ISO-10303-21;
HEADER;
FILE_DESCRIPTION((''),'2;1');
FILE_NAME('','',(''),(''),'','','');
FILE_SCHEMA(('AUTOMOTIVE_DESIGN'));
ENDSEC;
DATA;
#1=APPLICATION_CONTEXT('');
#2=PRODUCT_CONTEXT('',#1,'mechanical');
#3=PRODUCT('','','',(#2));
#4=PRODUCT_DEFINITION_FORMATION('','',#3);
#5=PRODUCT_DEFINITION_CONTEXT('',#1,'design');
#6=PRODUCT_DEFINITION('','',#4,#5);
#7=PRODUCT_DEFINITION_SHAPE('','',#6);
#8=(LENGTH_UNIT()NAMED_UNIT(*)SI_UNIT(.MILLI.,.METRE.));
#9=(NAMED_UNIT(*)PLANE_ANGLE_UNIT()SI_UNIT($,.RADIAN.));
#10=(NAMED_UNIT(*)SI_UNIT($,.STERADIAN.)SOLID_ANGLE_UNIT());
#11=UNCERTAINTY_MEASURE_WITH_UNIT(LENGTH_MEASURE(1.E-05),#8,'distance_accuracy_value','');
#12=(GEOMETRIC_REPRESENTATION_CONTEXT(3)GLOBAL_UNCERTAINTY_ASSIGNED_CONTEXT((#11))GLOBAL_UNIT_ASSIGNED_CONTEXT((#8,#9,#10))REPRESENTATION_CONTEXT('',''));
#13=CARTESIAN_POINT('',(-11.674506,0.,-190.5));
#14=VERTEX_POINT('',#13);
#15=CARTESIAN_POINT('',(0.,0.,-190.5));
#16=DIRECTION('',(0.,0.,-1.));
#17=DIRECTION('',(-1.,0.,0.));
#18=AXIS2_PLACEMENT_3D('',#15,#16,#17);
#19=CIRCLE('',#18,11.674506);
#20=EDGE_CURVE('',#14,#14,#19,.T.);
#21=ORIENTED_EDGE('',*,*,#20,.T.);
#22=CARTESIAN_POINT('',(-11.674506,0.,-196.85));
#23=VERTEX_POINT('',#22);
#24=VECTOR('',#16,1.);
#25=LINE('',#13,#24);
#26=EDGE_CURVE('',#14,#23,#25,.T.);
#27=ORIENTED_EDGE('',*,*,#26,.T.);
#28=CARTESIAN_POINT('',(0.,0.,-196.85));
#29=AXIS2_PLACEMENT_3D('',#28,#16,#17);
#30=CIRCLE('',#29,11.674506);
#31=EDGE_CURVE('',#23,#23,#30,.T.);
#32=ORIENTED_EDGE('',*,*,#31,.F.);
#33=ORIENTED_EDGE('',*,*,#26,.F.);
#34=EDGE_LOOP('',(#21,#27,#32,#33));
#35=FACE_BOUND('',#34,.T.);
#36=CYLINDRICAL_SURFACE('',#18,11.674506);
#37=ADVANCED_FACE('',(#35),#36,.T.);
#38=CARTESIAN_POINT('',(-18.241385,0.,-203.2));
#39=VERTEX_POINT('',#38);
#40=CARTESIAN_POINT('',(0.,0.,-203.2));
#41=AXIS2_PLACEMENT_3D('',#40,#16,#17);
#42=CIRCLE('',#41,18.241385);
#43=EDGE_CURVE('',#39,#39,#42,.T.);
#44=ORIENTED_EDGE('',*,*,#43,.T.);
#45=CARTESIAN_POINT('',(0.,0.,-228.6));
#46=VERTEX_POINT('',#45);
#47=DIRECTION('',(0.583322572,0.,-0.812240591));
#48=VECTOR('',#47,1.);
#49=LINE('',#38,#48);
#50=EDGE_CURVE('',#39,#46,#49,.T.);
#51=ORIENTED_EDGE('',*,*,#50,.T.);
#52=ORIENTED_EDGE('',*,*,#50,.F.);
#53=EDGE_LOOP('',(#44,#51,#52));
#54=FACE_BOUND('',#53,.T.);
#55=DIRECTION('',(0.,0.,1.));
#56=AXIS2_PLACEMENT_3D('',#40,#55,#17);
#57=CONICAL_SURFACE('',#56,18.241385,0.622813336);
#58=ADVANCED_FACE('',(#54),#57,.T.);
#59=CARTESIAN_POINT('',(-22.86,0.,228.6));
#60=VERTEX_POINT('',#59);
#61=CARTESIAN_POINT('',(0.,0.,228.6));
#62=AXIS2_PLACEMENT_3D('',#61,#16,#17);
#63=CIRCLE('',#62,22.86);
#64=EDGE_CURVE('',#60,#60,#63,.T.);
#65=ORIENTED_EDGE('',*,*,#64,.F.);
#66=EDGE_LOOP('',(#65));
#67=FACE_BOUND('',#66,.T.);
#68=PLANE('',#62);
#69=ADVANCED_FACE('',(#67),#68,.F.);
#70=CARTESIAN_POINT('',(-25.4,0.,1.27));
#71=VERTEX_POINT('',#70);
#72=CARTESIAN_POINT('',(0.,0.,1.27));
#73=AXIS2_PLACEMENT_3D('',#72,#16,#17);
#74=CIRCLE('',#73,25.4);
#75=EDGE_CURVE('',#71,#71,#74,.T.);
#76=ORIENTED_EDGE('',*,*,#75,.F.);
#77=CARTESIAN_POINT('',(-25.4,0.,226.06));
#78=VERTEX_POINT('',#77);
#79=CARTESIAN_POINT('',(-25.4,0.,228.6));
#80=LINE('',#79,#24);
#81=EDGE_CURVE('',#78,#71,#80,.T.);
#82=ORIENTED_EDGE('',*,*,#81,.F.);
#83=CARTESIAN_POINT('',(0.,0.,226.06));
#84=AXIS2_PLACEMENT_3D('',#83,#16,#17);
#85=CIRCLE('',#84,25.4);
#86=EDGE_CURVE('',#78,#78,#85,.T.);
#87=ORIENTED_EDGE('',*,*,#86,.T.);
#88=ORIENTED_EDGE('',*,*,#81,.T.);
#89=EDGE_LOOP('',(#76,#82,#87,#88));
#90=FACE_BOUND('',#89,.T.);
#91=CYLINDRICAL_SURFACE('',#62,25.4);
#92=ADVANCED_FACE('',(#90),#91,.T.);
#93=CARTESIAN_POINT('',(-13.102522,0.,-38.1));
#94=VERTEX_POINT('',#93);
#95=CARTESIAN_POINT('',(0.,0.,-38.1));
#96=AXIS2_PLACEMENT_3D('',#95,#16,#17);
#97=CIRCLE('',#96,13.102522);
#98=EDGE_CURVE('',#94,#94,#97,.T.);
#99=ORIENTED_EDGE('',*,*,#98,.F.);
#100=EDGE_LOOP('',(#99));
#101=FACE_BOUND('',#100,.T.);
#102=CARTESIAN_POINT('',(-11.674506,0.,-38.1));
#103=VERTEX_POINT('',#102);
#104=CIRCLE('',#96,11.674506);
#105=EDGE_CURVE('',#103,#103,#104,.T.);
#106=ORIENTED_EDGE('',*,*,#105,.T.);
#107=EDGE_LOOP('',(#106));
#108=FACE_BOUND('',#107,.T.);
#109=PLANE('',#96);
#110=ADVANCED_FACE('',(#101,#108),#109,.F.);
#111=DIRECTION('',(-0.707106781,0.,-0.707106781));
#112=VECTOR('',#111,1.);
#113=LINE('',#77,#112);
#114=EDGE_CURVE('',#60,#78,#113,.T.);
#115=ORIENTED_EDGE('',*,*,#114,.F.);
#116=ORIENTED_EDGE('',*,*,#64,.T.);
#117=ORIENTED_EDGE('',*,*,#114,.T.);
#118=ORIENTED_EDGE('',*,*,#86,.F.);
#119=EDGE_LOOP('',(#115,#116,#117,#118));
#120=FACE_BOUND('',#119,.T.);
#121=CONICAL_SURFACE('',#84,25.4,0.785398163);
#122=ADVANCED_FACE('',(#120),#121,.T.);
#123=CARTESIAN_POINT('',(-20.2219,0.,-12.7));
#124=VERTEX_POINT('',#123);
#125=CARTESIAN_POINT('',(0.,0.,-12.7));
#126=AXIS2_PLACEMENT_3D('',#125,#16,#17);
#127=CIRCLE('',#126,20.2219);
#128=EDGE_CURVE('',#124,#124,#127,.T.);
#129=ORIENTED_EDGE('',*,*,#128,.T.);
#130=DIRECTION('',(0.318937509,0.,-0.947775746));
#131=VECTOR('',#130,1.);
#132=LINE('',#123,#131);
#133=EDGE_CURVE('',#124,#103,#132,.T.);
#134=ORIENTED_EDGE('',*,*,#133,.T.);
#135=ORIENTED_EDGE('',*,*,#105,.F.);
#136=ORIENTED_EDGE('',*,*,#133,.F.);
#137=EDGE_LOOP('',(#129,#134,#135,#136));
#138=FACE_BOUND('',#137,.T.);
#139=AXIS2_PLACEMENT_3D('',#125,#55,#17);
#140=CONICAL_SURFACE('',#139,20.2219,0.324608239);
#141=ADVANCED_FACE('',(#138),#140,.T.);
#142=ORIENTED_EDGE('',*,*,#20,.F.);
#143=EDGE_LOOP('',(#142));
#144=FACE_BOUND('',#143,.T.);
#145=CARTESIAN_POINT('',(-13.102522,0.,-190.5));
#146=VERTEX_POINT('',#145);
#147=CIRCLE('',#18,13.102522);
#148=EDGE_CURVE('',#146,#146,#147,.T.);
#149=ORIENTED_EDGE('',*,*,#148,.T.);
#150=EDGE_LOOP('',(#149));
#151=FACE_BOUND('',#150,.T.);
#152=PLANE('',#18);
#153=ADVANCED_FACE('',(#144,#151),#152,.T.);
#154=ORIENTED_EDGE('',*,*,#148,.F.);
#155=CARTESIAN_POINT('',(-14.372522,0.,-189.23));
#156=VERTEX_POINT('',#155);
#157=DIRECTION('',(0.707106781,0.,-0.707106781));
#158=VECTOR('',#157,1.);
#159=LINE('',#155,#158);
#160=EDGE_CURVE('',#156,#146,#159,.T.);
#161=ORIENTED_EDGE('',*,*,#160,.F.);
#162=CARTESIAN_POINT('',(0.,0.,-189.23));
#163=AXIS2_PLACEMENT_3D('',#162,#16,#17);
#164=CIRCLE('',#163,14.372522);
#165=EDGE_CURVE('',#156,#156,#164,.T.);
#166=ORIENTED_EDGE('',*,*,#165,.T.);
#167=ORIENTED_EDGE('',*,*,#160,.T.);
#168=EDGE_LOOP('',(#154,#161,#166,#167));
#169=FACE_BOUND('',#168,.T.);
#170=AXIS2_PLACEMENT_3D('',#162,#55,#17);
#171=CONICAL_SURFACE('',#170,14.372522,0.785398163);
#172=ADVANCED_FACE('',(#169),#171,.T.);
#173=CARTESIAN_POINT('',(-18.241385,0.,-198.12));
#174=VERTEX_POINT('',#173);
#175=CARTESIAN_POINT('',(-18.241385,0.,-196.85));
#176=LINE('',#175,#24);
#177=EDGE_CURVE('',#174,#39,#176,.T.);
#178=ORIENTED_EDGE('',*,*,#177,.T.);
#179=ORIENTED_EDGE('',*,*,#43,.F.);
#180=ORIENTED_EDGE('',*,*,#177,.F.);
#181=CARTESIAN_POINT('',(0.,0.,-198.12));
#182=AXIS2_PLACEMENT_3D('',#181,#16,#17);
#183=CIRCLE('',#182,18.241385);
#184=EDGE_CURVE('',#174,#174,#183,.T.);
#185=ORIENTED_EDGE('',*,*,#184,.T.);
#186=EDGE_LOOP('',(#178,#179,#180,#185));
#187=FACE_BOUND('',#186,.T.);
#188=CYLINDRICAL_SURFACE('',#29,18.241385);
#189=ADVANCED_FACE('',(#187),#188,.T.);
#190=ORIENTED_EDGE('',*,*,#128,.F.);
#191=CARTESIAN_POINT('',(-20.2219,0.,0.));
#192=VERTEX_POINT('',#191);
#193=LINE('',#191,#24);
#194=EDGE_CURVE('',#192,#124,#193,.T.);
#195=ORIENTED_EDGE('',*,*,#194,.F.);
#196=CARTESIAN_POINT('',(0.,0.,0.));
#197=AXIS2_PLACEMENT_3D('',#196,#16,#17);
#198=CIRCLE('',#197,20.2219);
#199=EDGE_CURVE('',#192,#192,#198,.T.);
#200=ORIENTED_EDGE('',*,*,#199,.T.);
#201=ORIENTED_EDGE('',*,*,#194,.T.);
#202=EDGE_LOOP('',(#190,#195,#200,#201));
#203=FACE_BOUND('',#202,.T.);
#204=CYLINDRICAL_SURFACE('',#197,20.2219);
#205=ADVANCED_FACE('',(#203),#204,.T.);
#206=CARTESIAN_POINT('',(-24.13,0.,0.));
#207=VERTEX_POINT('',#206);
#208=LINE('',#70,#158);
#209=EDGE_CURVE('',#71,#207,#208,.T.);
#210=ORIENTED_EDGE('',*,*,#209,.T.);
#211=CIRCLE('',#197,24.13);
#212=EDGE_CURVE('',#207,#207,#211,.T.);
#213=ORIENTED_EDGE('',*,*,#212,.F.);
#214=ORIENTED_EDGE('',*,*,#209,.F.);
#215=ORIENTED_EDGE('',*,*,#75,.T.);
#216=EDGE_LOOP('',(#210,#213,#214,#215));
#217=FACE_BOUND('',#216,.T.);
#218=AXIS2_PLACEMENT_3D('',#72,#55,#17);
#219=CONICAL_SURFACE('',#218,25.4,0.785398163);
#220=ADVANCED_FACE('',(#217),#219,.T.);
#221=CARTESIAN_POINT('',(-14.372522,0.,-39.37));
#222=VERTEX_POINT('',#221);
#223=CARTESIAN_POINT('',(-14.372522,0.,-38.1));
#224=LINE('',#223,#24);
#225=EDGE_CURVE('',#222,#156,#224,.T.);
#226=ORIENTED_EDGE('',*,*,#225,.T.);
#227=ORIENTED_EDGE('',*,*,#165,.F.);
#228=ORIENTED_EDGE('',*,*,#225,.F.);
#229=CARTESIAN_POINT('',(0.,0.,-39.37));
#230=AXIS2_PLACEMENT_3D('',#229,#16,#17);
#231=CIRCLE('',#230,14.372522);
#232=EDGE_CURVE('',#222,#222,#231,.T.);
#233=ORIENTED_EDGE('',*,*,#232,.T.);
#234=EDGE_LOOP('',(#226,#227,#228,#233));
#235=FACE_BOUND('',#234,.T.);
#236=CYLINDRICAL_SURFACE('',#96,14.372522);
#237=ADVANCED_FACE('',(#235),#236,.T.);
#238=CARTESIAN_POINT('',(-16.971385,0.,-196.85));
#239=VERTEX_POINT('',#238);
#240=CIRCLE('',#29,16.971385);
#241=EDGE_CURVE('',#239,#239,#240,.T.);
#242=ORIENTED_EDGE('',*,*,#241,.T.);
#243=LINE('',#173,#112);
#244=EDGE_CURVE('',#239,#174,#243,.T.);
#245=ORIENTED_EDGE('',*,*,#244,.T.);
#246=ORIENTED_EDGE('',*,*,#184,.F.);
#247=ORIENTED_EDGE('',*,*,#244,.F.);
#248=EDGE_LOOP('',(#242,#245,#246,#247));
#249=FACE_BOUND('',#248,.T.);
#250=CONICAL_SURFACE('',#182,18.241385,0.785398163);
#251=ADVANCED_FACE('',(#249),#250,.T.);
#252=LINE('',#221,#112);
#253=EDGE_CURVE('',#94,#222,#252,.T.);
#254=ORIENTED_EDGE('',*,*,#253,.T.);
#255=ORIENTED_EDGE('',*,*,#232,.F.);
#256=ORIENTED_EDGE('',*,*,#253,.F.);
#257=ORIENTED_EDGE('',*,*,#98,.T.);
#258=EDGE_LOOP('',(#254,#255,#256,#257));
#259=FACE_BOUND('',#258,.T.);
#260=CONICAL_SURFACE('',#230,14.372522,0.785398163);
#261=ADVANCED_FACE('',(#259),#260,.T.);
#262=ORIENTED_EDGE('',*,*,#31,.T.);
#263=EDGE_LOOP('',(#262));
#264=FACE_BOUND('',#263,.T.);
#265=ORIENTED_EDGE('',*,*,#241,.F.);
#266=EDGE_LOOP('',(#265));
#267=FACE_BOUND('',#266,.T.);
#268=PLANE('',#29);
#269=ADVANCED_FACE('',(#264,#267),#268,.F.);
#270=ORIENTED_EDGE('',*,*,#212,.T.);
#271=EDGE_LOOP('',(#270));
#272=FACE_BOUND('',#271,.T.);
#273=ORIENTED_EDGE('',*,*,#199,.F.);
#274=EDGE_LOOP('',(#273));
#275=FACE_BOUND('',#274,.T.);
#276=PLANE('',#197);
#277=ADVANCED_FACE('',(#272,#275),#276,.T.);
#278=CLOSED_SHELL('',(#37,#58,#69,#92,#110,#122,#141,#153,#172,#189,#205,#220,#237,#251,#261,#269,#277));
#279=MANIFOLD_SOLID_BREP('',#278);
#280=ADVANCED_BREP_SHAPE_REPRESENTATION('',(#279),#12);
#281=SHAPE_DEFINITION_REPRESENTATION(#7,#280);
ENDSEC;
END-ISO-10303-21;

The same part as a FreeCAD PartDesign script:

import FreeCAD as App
import Part
import Sketcher
Q = App.Units.Quantity


def edges_at(feature, points):
    """Names of the edges that pass closest to the given points."""
    edges = feature.Shape.Edges
    near = lambda p: min(range(len(edges)), key=lambda i: edges[i].distToShape(Part.Vertex(*p))[0])
    return sorted({f"Edge{near(p) + 1}" for p in points})


def add_polygon(sketch, points):
    """Adds a closed chain of lines whose ends are joined by coincident constraints."""
    first, n = sketch.GeometryCount, len(points)
    for a, b in zip(points, points[1:] + points[:1]):
        sketch.addGeometry(Part.LineSegment(App.Vector(*a, 0), App.Vector(*b, 0)), False)
    for i in range(n):
        sketch.addConstraint(Sketcher.Constraint("Coincident", first + i, 2, first + (i + 1) % n, 1))

doc = App.newDocument("Part")
body = doc.addObject("PartDesign::Body", "Body")

# Sketch on XZ plane
sketch1 = doc.addObject("Sketcher::SketchObject", "Sketch")
body.addObject(sketch1)
sketch1.AttachmentSupport = (doc.XZ_Plane, [""])
sketch1.MapMode = "FlatFace"
add_polygon(sketch1, [(0, -228.6), (0, 228.6), (-25.4, 228.6), (-25.4, 0), (-20.2, 0), (-20.2, -12.7), (-11.7, -38.1), (-14.4, -38.1), (-14.4, -190.5), (-11.7, -190.5), (-11.7, -196.8), (-18.2, -196.8), (-18.2, -203.2)])  # lines 0-12
sketch1.addConstraint([
    Sketcher.Constraint("Vertical", 0),
    Sketcher.Constraint("Horizontal", 1),
    Sketcher.Constraint("Vertical", 2),
    Sketcher.Constraint("Horizontal", 3),
    Sketcher.Constraint("Vertical", 4),
    Sketcher.Constraint("Horizontal", 6),
    Sketcher.Constraint("Vertical", 7),
    Sketcher.Constraint("Horizontal", 8),
    Sketcher.Constraint("Vertical", 9),
    Sketcher.Constraint("Horizontal", 10),
    Sketcher.Constraint("Vertical", 11),
    Sketcher.Constraint("Symmetric", 0, 2, 12, 2, -1, 1),
    Sketcher.Constraint("PointOnObject", 2, 2, -1),
    Sketcher.Constraint("Vertical", 5, 2, 8, 2),
    Sketcher.Constraint("Equal", 9, 11),
    Sketcher.Constraint("DistanceX", 1, 2, 1, 1, Q("1 in")),
    Sketcher.Constraint("DistanceY", 0, 1, 0, 2, Q("18 in")),
    Sketcher.Constraint("DistanceY", 7, 2, 7, 1, Q("6 in")),
    Sketcher.Constraint("DistanceY", 4, 2, 4, 1, Q("0.5 in")),
    Sketcher.Constraint("DistanceY", 11, 2, -1, 1, Q("8 in")),
    Sketcher.Constraint("DistanceY", 5, 2, 4, 2, Q("1 in")),
    Sketcher.Constraint("DistanceX", 3, 1, 3, 2, Q("5.1781 mm")),
    Sketcher.Constraint("DistanceX", 10, 2, 10, 1, Q("6.566879 mm")),
    Sketcher.Constraint("Distance", 5, Q("26.799589 mm")),
    Sketcher.Constraint("DistanceX", 6, 2, 6, 1, Q("2.698016 mm")),
])
revolution = doc.addObject("PartDesign::Revolution", "Revolution")
body.addObject(revolution)
revolution.Profile = sketch1
revolution.ReferenceAxis = (sketch1, ["V_Axis"])
revolution.Angle = 360
doc.recompute()

chamfer = doc.addObject("PartDesign::Chamfer", "Chamfer")
body.addObject(chamfer)
chamfer.Base = (revolution, edges_at(revolution, [(25.4, 0, 228.6)]))
chamfer.Size = Q("0.1 in")
doc.recompute()

chamfer2 = doc.addObject("PartDesign::Chamfer", "Chamfer001")
body.addObject(chamfer2)
chamfer2.Base = (chamfer, edges_at(chamfer, [
    (25.4, 0, 0),
    (14.373, 0, -38.1),
    (18.241, 0, -196.85),
    (14.373, 0, -190.5),
]))
chamfer2.Size = Q("0.05 in")

doc.recompute()
